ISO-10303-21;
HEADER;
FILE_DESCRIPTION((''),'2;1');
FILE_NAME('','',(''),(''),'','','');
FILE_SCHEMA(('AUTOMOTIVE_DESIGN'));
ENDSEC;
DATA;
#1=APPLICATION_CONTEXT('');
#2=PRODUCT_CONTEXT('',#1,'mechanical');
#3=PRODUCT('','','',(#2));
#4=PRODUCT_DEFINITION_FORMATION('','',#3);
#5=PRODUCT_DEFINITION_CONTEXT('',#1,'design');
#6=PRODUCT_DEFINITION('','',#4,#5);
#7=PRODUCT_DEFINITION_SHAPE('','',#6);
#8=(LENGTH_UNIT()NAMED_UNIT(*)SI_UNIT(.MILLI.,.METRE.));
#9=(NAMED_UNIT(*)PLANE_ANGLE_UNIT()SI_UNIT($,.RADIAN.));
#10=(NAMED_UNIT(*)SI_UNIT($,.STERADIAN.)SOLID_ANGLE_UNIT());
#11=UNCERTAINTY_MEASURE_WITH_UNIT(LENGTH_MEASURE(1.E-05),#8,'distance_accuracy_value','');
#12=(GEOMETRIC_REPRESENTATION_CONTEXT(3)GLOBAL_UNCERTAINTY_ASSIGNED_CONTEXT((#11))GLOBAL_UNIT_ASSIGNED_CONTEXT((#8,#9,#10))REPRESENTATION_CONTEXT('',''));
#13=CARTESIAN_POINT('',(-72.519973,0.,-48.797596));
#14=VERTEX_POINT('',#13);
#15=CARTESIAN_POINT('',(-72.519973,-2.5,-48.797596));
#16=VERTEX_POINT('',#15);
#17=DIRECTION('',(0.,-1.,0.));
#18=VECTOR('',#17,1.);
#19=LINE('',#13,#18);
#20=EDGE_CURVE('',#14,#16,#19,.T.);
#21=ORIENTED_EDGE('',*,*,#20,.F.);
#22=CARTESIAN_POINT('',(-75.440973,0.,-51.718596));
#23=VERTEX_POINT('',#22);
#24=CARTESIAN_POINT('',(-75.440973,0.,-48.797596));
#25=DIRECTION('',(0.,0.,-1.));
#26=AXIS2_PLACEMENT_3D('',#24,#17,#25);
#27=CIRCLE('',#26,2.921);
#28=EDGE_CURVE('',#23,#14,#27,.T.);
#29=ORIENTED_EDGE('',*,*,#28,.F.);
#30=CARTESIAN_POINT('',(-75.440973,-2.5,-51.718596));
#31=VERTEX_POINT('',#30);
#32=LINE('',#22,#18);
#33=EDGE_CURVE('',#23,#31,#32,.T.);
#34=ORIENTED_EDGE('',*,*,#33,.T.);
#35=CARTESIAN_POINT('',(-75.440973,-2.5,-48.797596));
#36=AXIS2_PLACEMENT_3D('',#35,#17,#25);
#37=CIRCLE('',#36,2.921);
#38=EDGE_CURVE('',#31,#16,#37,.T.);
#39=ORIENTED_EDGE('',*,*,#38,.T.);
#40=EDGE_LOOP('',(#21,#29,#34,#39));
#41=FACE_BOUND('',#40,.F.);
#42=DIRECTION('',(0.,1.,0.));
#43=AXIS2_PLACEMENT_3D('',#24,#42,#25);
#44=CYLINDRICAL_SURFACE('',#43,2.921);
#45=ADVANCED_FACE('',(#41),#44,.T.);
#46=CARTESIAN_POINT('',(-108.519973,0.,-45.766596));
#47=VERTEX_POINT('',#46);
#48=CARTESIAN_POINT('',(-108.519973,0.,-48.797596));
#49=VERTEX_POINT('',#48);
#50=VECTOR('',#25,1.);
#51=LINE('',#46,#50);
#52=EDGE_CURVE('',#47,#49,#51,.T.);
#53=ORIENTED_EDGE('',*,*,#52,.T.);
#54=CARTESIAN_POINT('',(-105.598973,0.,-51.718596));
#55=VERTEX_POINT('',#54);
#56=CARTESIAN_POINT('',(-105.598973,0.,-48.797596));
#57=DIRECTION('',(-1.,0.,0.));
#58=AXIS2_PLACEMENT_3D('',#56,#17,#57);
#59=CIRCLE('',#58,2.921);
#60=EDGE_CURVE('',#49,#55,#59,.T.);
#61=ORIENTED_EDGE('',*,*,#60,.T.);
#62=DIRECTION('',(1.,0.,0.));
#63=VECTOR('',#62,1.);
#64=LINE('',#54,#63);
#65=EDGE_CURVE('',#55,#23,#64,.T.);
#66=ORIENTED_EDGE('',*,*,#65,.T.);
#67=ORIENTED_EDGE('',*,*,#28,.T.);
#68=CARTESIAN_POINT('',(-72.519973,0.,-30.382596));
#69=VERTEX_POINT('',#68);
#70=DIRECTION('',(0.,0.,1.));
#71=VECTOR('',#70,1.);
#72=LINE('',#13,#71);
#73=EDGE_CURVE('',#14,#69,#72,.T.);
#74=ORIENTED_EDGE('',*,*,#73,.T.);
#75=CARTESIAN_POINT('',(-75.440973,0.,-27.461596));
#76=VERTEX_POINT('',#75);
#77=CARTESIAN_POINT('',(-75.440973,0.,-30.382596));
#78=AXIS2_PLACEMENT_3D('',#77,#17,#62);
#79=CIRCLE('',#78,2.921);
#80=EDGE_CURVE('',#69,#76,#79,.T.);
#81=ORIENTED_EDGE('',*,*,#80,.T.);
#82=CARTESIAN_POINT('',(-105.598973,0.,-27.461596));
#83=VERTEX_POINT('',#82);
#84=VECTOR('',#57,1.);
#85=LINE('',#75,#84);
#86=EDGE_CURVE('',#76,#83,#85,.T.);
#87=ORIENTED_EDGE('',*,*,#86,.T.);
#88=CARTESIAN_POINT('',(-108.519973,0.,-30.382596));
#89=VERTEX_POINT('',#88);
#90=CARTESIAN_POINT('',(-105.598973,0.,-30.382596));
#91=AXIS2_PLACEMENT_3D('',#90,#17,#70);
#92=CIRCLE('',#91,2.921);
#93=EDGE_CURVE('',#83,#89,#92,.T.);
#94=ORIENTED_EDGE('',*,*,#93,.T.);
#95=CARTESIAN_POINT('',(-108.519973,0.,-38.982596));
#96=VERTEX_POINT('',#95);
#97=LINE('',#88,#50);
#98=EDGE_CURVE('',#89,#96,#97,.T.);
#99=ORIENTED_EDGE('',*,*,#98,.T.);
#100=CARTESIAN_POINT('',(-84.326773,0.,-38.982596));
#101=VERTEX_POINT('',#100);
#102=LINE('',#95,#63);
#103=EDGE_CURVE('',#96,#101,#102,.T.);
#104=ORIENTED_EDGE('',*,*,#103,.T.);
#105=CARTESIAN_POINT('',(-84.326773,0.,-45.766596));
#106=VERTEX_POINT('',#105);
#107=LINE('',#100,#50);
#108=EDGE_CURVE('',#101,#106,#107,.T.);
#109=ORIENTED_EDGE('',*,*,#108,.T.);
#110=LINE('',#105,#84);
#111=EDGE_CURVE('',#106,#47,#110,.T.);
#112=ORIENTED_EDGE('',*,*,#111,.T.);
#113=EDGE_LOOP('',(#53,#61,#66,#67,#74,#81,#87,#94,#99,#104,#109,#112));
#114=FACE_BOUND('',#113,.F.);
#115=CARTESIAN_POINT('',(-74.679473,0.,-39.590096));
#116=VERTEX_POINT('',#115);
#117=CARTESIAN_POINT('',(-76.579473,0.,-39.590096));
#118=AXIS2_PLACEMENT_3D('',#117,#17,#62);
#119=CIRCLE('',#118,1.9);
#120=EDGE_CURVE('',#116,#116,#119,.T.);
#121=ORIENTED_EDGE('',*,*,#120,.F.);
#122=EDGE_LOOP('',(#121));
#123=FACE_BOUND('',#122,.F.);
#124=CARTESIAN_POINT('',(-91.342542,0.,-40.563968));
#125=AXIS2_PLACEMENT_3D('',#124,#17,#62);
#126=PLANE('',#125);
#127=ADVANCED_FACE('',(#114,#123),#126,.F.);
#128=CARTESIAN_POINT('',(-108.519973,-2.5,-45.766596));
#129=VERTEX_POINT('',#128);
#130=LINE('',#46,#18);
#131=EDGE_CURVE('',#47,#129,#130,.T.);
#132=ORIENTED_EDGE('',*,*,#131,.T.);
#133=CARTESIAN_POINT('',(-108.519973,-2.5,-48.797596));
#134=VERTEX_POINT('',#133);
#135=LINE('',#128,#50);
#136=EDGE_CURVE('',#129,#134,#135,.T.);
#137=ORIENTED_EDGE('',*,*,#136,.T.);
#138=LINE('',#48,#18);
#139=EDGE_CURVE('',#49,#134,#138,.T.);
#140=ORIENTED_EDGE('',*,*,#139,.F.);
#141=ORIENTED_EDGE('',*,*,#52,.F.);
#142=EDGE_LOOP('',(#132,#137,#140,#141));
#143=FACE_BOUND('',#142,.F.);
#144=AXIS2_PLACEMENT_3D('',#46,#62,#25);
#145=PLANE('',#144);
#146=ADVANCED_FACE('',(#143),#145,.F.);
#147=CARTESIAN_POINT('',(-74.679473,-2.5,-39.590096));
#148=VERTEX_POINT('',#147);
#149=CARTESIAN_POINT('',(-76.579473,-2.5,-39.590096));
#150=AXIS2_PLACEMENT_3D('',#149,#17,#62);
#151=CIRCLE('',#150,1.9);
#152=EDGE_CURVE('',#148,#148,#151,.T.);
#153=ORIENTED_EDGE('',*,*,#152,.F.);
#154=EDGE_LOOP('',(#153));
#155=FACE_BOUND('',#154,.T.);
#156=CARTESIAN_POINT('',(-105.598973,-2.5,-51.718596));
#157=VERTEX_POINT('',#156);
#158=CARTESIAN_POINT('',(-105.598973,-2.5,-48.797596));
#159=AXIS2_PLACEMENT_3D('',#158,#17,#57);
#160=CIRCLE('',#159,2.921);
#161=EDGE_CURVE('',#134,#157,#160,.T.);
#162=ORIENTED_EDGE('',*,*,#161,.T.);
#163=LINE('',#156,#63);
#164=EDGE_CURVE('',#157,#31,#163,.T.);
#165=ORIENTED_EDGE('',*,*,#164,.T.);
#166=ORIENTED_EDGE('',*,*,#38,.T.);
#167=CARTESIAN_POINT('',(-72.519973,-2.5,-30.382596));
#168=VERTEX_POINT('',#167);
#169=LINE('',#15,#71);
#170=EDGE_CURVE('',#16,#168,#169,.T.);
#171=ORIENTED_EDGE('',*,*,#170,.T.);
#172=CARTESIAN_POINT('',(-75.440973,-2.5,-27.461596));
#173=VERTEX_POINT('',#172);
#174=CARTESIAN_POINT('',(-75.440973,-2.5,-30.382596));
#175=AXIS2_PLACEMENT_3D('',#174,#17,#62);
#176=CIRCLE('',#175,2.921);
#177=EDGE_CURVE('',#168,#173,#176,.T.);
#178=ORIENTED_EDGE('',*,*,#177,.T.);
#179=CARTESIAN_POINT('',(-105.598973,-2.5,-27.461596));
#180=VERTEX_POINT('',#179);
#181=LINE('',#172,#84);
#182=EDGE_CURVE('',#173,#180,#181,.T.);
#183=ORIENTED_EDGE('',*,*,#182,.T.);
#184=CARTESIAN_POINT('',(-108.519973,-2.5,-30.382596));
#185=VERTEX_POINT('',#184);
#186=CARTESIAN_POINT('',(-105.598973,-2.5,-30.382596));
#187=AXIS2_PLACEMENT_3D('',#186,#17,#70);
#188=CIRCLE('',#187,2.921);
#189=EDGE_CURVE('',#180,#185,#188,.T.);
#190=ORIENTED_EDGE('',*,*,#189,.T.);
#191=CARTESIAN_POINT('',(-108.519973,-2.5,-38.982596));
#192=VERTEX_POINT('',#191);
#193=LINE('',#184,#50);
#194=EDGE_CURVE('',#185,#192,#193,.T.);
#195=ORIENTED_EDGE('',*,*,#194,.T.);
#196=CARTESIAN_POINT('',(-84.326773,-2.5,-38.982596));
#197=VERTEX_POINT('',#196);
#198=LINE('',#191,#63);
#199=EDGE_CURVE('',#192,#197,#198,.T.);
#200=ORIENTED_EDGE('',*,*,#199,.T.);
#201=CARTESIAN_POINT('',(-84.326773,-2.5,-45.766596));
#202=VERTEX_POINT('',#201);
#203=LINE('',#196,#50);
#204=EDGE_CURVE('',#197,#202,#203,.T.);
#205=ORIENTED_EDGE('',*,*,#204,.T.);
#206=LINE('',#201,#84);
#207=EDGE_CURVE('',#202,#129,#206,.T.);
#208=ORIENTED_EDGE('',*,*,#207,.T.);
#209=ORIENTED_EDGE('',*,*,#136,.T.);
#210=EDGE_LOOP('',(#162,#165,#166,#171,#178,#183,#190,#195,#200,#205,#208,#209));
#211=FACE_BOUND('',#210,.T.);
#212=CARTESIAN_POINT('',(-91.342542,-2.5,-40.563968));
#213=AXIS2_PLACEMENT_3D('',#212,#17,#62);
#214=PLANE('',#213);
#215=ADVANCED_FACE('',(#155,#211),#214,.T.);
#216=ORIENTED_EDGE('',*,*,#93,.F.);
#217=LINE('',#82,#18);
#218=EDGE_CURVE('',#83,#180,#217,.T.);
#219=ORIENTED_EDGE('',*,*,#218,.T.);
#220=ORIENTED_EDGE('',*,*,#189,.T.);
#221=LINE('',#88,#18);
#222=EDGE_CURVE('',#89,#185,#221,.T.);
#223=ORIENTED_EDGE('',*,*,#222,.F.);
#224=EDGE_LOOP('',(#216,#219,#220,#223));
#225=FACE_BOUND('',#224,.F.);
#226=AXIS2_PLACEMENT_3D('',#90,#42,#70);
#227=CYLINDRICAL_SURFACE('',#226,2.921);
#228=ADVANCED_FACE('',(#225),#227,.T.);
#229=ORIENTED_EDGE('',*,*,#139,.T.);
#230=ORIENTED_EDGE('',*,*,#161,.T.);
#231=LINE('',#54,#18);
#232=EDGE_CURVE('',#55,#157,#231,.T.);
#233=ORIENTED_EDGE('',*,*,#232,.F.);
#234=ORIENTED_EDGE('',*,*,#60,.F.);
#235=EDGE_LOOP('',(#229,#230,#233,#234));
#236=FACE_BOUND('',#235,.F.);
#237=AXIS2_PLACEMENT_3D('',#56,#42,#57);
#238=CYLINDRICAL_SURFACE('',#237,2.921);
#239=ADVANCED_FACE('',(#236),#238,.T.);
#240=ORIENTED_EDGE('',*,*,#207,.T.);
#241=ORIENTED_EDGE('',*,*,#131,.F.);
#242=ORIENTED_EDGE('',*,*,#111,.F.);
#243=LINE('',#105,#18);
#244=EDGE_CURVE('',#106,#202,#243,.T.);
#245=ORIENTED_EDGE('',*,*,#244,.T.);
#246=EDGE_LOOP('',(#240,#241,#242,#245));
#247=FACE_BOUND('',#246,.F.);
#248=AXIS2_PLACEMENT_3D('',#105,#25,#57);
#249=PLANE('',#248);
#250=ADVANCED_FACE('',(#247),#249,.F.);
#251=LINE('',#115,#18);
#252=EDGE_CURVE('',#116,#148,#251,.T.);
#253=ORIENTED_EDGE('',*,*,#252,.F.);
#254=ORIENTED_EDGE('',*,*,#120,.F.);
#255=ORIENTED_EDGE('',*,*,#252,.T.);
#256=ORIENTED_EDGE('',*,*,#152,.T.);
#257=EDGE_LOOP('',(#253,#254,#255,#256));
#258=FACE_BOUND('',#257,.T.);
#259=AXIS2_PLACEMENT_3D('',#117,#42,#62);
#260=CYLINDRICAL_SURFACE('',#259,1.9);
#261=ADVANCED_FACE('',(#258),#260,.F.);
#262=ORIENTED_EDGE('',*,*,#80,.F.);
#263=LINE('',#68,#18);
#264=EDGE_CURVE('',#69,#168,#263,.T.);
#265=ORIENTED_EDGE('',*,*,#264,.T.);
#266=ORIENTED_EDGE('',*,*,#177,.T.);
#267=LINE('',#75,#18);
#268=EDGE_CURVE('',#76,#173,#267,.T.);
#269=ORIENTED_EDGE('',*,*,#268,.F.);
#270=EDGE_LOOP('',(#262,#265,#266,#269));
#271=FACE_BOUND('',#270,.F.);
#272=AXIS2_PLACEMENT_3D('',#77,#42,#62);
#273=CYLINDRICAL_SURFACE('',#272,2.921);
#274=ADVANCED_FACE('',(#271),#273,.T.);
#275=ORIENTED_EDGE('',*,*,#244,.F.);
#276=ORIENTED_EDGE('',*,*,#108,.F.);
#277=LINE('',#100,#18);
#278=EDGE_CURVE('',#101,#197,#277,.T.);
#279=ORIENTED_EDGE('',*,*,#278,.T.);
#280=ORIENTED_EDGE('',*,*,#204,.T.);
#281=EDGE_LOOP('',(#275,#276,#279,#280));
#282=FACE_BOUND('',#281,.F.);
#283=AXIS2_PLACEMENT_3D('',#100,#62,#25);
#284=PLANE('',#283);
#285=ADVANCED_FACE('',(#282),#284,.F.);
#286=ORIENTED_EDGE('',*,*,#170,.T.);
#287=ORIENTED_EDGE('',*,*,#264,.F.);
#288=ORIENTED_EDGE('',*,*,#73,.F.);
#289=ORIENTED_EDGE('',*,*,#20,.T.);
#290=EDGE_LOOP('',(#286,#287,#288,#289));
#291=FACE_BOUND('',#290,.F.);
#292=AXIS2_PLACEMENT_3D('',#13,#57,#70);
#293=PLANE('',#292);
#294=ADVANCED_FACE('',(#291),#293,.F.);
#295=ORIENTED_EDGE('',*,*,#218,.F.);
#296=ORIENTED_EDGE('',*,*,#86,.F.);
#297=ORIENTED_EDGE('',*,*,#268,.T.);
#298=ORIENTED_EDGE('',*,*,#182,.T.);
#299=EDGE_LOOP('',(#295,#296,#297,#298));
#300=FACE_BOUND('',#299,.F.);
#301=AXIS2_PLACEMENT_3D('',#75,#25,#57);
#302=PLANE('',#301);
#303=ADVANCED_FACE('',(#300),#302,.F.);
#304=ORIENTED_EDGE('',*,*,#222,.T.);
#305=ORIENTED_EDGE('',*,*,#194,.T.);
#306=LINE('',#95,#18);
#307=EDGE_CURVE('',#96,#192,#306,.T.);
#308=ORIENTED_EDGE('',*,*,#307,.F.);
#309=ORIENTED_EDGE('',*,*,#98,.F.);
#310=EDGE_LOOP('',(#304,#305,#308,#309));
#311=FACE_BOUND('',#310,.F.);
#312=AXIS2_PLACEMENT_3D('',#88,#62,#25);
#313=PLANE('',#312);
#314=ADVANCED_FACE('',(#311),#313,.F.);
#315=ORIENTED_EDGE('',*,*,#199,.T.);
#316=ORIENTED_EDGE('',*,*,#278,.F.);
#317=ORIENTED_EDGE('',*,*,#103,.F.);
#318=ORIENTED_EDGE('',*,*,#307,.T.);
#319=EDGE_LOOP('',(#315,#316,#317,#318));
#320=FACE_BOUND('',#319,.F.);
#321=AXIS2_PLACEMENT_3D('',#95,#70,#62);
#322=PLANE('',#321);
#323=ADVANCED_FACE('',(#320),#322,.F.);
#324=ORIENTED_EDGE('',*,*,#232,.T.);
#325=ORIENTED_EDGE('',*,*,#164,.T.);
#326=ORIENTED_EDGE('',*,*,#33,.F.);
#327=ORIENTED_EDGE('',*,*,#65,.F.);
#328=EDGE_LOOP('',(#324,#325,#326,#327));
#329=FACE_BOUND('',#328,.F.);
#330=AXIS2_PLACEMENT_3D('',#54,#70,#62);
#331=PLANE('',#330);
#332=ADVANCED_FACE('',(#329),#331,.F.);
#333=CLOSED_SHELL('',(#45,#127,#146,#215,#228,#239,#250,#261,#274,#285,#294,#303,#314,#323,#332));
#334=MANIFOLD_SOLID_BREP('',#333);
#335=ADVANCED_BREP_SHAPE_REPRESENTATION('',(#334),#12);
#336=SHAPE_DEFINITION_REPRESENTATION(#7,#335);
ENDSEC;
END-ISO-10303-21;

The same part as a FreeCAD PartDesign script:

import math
import FreeCAD as App
import Part
import Sketcher

V = App.Vector

doc = App.newDocument("Part")
body = doc.addObject("PartDesign::Body", "Body")

# Sketch on XZ plane
sketch1 = body.newObject("Sketcher::SketchObject", "Sketch")
sketch1.AttachmentSupport = (doc.getObject("XZ_Plane"), [""])
sketch1.MapMode = "FlatFace"
sketch1.addGeometry([
    Part.LineSegment(V(-75.4, -27.5, 0), V(-105.6, -27.5, 0)),  # 0
    Part.ArcOfCircle(Part.Circle(V(-105.6, -30.4, 0), V(0, 0, 1), 2.9), math.radians(90), math.radians(180)),  # 1
    Part.LineSegment(V(-108.5, -30.4, 0), V(-108.5, -39, 0)),  # 2
    Part.LineSegment(V(-108.5, -39, 0), V(-84.3, -39, 0)),  # 3
    Part.LineSegment(V(-84.3, -39, 0), V(-84.3, -45.8, 0)),  # 4
    Part.LineSegment(V(-84.3, -45.8, 0), V(-108.5, -45.8, 0)),  # 5
    Part.LineSegment(V(-108.5, -45.8, 0), V(-108.5, -48.8, 0)),  # 6
    Part.ArcOfCircle(Part.Circle(V(-105.6, -48.8, 0), V(0, 0, 1), 2.9), math.radians(180), math.radians(270)),  # 7
    Part.LineSegment(V(-105.6, -51.7, 0), V(-75.4, -51.7, 0)),  # 8
    Part.ArcOfCircle(Part.Circle(V(-75.4, -48.8, 0), V(0, 0, 1), 2.9), math.radians(-90), math.radians(0)),  # 9
    Part.LineSegment(V(-72.5, -48.8, 0), V(-72.5, -30.4, 0)),  # 10
    Part.ArcOfCircle(Part.Circle(V(-75.4, -30.4, 0), V(0, 0, 1), 2.9), math.radians(0), math.radians(90)),  # 11
    Part.Circle(V(-76.6, -39.6, 0), V(0, 0, 1), 1.9),  # 12
], False)
sketch1.addConstraint([
    Sketcher.Constraint("Tangent", 0, 2, 1, 1),
    Sketcher.Constraint("Tangent", 1, 2, 2, 1),
    Sketcher.Constraint("Coincident", 2, 2, 3, 1),
    Sketcher.Constraint("Coincident", 3, 2, 4, 1),
    Sketcher.Constraint("Coincident", 4, 2, 5, 1),
    Sketcher.Constraint("Coincident", 5, 2, 6, 1),
    Sketcher.Constraint("Tangent", 6, 2, 7, 1),
    Sketcher.Constraint("Tangent", 7, 2, 8, 1),
    Sketcher.Constraint("Tangent", 8, 2, 9, 1),
    Sketcher.Constraint("Tangent", 9, 2, 10, 1),
    Sketcher.Constraint("Tangent", 10, 2, 11, 1),
    Sketcher.Constraint("Tangent", 11, 2, 0, 1),
    Sketcher.Constraint("Horizontal", 0),
    Sketcher.Constraint("Vertical", 2),
    Sketcher.Constraint("Horizontal", 3),
    Sketcher.Constraint("Vertical", 4),
    Sketcher.Constraint("Horizontal", 5),
    Sketcher.Constraint("Vertical", 6),
    Sketcher.Constraint("Horizontal", 8),
    Sketcher.Constraint("Vertical", 10),
    Sketcher.Constraint("Equal", 1, 7),
    Sketcher.Constraint("Equal", 7, 9),
    Sketcher.Constraint("Equal", 9, 11),
    Sketcher.Constraint("Vertical", 1, 3, 7, 3),
    Sketcher.Constraint("Diameter", 12, 3.8),
    Sketcher.Constraint("DistanceY", 2, 2, 2, 1, 8.6),
    Sketcher.Constraint("Radius", 1, 2.921),
    Sketcher.Constraint("DistanceX", 0, 2, 0, 1, 30.158),
    Sketcher.Constraint("DistanceY", 4, 2, 4, 1, 6.784),
    Sketcher.Constraint("DistanceY", 6, 2, 6, 1, 3.031),
    Sketcher.Constraint("DistanceX", 3, 1, 3, 2, 24.1932),
    Sketcher.Constraint("DistanceX", 12, 3, 11, 3, 1.1385),
    Sketcher.Constraint("DistanceY", 12, 3, 11, 3, 9.2075),
    Sketcher.Constraint("DistanceX", 1, 3, -1, 1, 105.598973),
    Sketcher.Constraint("DistanceY", 1, 3, -1, 1, 30.382596),
])
pad1 = body.newObject("PartDesign::Pad", "Pad")
pad1.Profile = sketch1
pad1.Length = 2.5

doc.recompute()
